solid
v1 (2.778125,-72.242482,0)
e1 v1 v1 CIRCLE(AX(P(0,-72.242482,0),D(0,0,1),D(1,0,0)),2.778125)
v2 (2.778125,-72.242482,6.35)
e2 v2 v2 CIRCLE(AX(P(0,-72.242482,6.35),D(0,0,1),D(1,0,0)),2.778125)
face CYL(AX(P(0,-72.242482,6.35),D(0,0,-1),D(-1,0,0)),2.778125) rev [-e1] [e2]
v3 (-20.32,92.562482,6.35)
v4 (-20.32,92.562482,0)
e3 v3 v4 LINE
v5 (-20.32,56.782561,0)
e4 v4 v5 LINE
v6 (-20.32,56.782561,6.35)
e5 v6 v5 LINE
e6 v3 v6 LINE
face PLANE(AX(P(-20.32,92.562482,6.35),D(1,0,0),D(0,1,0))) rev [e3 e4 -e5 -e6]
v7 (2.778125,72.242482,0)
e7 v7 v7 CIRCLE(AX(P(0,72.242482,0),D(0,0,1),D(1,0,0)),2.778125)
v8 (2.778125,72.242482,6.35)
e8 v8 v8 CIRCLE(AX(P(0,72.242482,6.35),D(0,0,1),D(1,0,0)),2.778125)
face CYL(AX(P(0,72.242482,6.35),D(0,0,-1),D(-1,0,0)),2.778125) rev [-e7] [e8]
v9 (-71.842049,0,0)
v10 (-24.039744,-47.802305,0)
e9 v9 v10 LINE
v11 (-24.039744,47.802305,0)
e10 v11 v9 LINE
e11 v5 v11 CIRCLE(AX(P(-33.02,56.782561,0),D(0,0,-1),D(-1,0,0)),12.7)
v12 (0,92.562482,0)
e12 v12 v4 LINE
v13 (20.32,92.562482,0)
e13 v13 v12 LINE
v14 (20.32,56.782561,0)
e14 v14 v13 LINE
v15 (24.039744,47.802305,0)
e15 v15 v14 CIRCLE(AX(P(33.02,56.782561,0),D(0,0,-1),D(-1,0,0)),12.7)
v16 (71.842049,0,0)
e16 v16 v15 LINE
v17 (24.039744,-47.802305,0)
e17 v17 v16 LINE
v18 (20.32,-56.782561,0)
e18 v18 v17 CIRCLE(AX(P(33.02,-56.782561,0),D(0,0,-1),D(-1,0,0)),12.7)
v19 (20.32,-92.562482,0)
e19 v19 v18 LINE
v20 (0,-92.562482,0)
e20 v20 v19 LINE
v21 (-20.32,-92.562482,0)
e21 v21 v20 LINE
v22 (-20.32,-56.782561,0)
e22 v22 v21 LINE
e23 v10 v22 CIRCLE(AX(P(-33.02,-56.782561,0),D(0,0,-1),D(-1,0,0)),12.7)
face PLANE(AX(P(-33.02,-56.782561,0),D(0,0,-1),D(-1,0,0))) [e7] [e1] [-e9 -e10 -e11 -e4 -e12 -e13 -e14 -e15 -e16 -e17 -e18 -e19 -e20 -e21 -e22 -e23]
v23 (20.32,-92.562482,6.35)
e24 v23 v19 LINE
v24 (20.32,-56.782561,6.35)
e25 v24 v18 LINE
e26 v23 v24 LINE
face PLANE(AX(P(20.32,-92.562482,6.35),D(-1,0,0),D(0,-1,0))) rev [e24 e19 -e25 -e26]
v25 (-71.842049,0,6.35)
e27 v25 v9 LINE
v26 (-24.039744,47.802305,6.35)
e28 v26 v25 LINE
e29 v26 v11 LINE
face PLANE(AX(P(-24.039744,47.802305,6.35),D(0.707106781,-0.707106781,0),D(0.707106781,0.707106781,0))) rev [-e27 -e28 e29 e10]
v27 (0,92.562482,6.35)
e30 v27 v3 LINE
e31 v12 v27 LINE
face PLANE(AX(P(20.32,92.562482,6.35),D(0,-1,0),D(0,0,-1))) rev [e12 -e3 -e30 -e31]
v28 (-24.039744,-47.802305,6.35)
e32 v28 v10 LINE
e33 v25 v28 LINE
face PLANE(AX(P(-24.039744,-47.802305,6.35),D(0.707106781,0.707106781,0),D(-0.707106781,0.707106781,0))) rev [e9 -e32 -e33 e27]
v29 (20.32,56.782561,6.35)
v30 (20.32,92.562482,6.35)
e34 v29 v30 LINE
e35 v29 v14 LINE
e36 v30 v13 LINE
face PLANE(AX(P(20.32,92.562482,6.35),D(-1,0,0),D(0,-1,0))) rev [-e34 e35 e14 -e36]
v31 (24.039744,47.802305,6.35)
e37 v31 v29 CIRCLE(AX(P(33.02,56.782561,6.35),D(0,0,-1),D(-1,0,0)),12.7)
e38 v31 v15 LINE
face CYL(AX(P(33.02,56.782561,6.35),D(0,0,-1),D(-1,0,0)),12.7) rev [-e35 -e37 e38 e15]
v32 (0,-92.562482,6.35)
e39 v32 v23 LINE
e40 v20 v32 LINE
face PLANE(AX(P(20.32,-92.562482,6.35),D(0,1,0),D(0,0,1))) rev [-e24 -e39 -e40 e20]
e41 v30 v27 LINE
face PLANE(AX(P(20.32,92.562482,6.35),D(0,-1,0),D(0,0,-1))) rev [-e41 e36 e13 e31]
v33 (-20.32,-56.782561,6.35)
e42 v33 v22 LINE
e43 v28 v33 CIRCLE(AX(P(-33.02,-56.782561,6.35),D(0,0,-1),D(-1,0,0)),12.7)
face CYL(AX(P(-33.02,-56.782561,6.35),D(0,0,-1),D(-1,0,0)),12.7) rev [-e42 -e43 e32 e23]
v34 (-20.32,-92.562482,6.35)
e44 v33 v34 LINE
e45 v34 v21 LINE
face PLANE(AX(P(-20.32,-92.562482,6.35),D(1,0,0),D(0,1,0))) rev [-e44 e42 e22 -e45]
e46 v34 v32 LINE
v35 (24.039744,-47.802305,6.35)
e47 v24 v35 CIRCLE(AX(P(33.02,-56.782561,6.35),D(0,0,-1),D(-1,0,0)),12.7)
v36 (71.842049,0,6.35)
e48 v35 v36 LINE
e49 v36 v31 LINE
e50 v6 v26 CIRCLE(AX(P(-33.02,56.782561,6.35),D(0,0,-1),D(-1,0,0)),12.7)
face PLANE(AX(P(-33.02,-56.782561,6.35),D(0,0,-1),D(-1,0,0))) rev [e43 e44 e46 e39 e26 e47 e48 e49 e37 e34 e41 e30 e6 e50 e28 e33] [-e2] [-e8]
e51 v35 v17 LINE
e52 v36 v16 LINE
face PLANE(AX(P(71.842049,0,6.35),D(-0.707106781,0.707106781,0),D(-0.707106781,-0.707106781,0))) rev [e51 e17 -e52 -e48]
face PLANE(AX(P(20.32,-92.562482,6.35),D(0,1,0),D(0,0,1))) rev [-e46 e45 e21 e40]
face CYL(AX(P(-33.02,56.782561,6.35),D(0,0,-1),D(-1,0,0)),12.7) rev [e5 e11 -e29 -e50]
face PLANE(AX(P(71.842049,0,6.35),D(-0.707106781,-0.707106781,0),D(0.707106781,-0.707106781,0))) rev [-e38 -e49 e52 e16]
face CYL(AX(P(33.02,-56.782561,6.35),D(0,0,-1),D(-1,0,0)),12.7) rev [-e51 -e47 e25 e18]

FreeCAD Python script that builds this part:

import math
import FreeCAD as App
import Part
import Sketcher
from FreeCAD import Vector
Q = App.Units.Quantity

doc = App.newDocument("Part")
body = doc.addObject("PartDesign::Body", "Body")

sketch1 = body.newObject("Sketcher::SketchObject", "Sketch")
sketch1.AttachmentSupport = (doc.getObject("XY_Plane"), [""])
sketch1.MapMode = "FlatFace"
sketch1.addGeometry(Part.LineSegment(Vector(71.842049, 0, 0), Vector(24.039744, 47.802305, 0)), False)
sketch1.addGeometry(Part.ArcOfCircle(Part.Circle(Vector(33.02, 56.782561, 0), Vector(0, 0, 1), 12.7), math.radians(180), math.radians(225)), False)
sketch1.addGeometry(Part.LineSegment(Vector(20.32, 56.782561, 0), Vector(20.32, 92.562482, 0)), False)
sketch1.addGeometry(Part.LineSegment(Vector(20.32, 92.562482, 0), Vector(-20.32, 92.562482, 0)), False)
sketch1.addGeometry(Part.LineSegment(Vector(-20.32, 92.562482, 0), Vector(-20.32, 56.782561, 0)), False)
sketch1.addGeometry(Part.ArcOfCircle(Part.Circle(Vector(-33.02, 56.782561, 0), Vector(0, 0, 1), 12.7), math.radians(-45), math.radians(0)), False)
sketch1.addGeometry(Part.LineSegment(Vector(-24.039744, 47.802305, 0), Vector(-71.842049, 0, 0)), False)
sketch1.addGeometry(Part.LineSegment(Vector(-71.842049, 0, 0), Vector(-24.039744, -47.802305, 0)), False)
sketch1.addGeometry(Part.ArcOfCircle(Part.Circle(Vector(-33.02, -56.782561, 0), Vector(0, 0, 1), 12.7), math.radians(0), math.radians(45)), False)
sketch1.addGeometry(Part.LineSegment(Vector(-20.32, -56.782561, 0), Vector(-20.32, -92.562482, 0)), False)
sketch1.addGeometry(Part.LineSegment(Vector(-20.32, -92.562482, 0), Vector(20.32, -92.562482, 0)), False)
sketch1.addGeometry(Part.LineSegment(Vector(20.32, -92.562482, 0), Vector(20.32, -56.782561, 0)), False)
sketch1.addGeometry(Part.ArcOfCircle(Part.Circle(Vector(33.02, -56.782561, 0), Vector(0, 0, 1), 12.7), math.radians(135), math.radians(180)), False)
sketch1.addGeometry(Part.LineSegment(Vector(24.039744, -47.802305, 0), Vector(71.842049, 0, 0)), False)
sketch1.addGeometry(Part.Circle(Vector(0, -72.242482, 0), Vector(0, 0, 1), 2.778125), False)
sketch1.addGeometry(Part.Circle(Vector(0, 72.242482, 0), Vector(0, 0, 1), 2.778125), False)
sketch1.addConstraint(Sketcher.Constraint("Tangent", 0, 2, 1, 2))
sketch1.addConstraint(Sketcher.Constraint("Tangent", 1, 1, 2, 1))
sketch1.addConstraint(Sketcher.Constraint("Coincident", 2, 2, 3, 1))
sketch1.addConstraint(Sketcher.Constraint("Coincident", 3, 2, 4, 1))
sketch1.addConstraint(Sketcher.Constraint("Tangent", 4, 2, 5, 2))
sketch1.addConstraint(Sketcher.Constraint("Tangent", 5, 1, 6, 1))
sketch1.addConstraint(Sketcher.Constraint("Coincident", 6, 2, 7, 1))
sketch1.addConstraint(Sketcher.Constraint("Tangent", 7, 2, 8, 2))
sketch1.addConstraint(Sketcher.Constraint("Tangent", 8, 1, 9, 1))
sketch1.addConstraint(Sketcher.Constraint("Coincident", 9, 2, 10, 1))
sketch1.addConstraint(Sketcher.Constraint("Coincident", 10, 2, 11, 1))
sketch1.addConstraint(Sketcher.Constraint("Tangent", 11, 2, 12, 2))
sketch1.addConstraint(Sketcher.Constraint("Tangent", 12, 1, 13, 1))
sketch1.addConstraint(Sketcher.Constraint("Coincident", 13, 2, 0, 1))
sketch1.addConstraint(Sketcher.Constraint("Vertical", 2))
sketch1.addConstraint(Sketcher.Constraint("Horizontal", 3))
sketch1.addConstraint(Sketcher.Constraint("Vertical", 4))
sketch1.addConstraint(Sketcher.Constraint("Vertical", 9))
sketch1.addConstraint(Sketcher.Constraint("Horizontal", 10))
sketch1.addConstraint(Sketcher.Constraint("Vertical", 11))
sketch1.addConstraint(Sketcher.Constraint("Equal", 1, 5))
sketch1.addConstraint(Sketcher.Constraint("Equal", 5, 8))
sketch1.addConstraint(Sketcher.Constraint("Equal", 8, 12))
sketch1.addConstraint(Sketcher.Constraint("Equal", 14, 15))
sketch1.addConstraint(Sketcher.Constraint("Symmetric", 1, 3, 8, 3, -1, 1))
sketch1.addConstraint(Sketcher.Constraint("Symmetric", 5, 3, 12, 3, -1, 1))
sketch1.addConstraint(Sketcher.Constraint("Symmetric", 14, 3, 15, 3, -1, 1))
sketch1.addConstraint(Sketcher.Constraint("Symmetric", 6, 2, 13, 2, -1, 1))
sketch1.addConstraint(Sketcher.Constraint("Symmetric", 1, 3, 5, 3, -2))
sketch1.addConstraint(Sketcher.Constraint("PointOnObject", 14, 3, -2))
sketch1.addConstraint(Sketcher.Constraint("PointOnObject", 6, 2, -1))
sketch1.addConstraint(Sketcher.Constraint("Perpendicular", 0, 6))
sketch1.addConstraint(Sketcher.Constraint("Equal", 4, 9))
sketch1.addConstraint(Sketcher.Constraint("Radius", 1, Q("0.5 in")))
sketch1.addConstraint(Sketcher.Constraint("Diameter", 14, Q("0.21875 in")))
sketch1.addConstraint(Sketcher.Constraint("DistanceX", 3, 2, 3, 1, Q("1.6 in")))
sketch1.addConstraint(Sketcher.Constraint("DistanceY", 15, 3, 2, 2, Q("0.8 in")))
sketch1.addConstraint(Sketcher.Constraint("DistanceY", 2, 1, 2, 2, Q("35.77992 mm")))
sketch1.addConstraint(Sketcher.Constraint("Distance", 0, Q("67.602668 mm")))
pad1 = body.newObject("PartDesign::Pad", "Pad")
pad1.Profile = sketch1
pad1.Length = Q("0.25 in")

doc.recompute()
